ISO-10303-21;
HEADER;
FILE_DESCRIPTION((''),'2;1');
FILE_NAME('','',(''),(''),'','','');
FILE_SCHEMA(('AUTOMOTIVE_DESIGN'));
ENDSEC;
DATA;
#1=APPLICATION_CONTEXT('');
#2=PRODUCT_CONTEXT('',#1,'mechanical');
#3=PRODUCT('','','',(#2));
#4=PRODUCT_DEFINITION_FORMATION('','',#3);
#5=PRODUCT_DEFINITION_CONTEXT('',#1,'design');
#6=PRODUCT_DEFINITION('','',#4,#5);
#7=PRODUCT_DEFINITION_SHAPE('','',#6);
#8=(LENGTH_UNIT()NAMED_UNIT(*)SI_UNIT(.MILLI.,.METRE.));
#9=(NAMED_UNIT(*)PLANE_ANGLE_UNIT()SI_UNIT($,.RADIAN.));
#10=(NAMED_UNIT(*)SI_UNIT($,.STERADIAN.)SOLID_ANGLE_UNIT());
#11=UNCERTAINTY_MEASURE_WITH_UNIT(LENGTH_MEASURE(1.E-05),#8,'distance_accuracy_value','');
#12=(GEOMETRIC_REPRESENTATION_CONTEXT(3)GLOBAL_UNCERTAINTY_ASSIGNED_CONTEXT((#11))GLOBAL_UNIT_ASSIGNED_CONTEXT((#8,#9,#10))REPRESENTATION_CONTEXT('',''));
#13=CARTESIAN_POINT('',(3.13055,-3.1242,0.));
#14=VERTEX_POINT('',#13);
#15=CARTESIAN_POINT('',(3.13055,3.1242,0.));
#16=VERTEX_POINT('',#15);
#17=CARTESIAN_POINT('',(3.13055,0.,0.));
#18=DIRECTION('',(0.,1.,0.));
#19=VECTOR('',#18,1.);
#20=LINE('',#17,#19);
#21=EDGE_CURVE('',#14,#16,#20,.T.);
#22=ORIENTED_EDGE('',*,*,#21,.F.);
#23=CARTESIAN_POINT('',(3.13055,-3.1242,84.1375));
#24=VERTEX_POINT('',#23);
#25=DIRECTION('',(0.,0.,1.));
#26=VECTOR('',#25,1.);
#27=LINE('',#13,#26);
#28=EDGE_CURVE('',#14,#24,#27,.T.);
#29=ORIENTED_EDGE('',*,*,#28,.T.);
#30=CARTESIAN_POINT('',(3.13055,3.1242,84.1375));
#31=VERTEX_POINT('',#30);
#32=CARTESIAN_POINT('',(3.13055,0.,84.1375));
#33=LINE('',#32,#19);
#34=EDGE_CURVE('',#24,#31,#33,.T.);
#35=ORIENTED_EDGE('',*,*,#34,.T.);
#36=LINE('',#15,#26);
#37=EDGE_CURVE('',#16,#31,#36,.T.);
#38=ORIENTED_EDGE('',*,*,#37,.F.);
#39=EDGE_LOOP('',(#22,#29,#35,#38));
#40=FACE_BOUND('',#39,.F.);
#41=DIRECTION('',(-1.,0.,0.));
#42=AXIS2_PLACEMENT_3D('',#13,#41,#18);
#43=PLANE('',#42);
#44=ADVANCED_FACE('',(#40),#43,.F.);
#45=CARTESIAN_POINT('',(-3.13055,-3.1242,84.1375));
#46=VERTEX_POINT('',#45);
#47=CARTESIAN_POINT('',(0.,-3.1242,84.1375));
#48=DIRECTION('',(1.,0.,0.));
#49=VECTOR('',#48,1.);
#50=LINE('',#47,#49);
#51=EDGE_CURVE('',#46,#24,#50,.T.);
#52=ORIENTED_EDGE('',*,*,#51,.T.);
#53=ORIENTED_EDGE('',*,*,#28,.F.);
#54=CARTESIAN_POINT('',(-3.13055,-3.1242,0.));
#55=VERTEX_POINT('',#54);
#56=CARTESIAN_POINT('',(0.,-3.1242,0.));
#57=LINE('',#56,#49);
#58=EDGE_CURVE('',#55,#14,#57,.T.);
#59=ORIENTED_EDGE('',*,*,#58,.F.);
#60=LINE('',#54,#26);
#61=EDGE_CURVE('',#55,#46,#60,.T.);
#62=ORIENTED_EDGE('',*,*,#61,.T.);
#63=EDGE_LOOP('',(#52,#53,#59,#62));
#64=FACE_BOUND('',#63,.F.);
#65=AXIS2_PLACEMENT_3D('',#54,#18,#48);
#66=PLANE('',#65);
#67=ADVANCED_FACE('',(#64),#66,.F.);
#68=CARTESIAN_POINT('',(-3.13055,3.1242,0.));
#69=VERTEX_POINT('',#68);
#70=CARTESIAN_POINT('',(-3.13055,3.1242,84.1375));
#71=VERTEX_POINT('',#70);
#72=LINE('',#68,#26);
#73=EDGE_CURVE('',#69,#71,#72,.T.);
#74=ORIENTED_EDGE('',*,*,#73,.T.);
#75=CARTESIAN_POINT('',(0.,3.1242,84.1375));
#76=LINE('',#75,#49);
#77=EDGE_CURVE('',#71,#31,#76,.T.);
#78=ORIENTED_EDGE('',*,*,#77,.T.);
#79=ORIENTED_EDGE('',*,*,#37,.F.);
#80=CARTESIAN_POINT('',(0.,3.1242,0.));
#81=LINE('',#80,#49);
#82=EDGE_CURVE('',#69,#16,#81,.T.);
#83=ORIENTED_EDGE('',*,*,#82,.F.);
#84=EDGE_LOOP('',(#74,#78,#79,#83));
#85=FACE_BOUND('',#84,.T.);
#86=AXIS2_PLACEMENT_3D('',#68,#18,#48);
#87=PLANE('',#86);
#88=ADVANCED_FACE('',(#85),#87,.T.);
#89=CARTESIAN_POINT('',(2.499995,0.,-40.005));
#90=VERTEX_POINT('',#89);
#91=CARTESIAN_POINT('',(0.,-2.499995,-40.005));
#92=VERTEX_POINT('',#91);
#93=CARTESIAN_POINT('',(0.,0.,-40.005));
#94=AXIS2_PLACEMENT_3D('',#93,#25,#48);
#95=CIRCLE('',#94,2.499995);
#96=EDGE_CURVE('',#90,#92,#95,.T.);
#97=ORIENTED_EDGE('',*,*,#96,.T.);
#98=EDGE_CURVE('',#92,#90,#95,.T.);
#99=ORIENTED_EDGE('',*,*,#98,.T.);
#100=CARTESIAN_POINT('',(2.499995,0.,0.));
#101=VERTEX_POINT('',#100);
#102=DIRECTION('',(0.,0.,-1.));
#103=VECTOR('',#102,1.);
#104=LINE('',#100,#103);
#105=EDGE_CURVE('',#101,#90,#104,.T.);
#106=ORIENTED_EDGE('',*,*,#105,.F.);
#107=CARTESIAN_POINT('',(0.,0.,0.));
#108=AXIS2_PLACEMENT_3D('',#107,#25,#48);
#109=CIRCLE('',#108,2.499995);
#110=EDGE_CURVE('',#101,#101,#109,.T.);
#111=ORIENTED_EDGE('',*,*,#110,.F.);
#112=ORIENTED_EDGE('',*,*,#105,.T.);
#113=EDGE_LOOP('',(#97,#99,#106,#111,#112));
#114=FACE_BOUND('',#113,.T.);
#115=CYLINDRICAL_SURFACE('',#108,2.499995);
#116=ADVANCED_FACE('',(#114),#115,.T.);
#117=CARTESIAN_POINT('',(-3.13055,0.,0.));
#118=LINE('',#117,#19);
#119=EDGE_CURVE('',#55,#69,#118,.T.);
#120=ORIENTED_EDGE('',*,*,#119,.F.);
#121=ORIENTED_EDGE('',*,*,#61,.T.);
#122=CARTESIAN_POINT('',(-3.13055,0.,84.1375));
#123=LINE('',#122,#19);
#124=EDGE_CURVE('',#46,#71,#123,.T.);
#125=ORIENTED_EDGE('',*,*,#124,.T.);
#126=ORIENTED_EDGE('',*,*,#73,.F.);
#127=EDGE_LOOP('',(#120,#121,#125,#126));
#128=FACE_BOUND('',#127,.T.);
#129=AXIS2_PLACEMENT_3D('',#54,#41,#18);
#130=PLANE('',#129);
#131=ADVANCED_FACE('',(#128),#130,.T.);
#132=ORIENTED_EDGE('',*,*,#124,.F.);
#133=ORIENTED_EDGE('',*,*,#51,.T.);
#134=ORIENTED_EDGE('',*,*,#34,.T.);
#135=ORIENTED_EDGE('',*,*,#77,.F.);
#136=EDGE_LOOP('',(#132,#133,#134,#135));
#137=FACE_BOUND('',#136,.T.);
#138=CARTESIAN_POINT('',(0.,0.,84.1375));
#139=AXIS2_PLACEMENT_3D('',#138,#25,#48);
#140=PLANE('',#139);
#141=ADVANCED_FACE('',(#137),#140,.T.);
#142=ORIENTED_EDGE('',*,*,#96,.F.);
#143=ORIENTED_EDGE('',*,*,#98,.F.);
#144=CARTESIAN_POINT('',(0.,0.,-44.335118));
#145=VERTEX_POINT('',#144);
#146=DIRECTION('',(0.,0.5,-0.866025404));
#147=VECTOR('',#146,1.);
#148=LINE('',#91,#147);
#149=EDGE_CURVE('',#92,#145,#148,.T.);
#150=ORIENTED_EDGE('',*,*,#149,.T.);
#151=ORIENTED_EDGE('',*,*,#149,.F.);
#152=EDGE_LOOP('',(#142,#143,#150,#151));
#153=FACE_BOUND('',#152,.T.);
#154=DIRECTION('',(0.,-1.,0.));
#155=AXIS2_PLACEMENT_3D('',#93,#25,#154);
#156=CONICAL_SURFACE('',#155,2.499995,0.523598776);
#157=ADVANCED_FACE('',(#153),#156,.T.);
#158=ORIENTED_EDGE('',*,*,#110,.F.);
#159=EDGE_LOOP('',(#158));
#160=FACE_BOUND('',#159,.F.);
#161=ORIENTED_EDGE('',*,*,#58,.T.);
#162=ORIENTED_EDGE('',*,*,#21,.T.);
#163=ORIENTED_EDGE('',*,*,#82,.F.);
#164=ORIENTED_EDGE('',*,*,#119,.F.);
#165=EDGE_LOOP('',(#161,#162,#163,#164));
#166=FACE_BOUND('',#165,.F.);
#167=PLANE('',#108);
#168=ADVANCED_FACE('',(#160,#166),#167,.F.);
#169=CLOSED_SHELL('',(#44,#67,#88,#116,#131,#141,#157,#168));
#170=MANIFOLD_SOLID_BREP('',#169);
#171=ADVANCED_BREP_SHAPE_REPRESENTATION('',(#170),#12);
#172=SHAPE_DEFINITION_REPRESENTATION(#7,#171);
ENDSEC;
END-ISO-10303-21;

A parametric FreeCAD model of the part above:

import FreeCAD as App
import Part
import Sketcher
Q = App.Units.Quantity

doc = App.newDocument("Part")
body = doc.addObject("PartDesign::Body", "Body")

# Sketch on XY plane
sketch1 = body.newObject("Sketcher::SketchObject", "Sketch")
sketch1.AttachmentSupport = (doc.getObject("XY_Plane"), [""])
sketch1.MapMode = "FlatFace"
sketch1.addGeometry([
    Part.LineSegment(App.Vector(-3, 3, 0), App.Vector(-3, -3, 0)),
    Part.LineSegment(App.Vector(-3, -3, 0), App.Vector(3, -3, 0)),
    Part.LineSegment(App.Vector(3, -3, 0), App.Vector(3, 3, 0)),
    Part.LineSegment(App.Vector(3, 3, 0), App.Vector(-3, 3, 0)),
], False)
sketch1.addConstraint([
    Sketcher.Constraint("Coincident", 0, 2, 1, 1),
    Sketcher.Constraint("Coincident", 1, 2, 2, 1),
    Sketcher.Constraint("Coincident", 2, 2, 3, 1),
    Sketcher.Constraint("Coincident", 3, 2, 0, 1),
    Sketcher.Constraint("Vertical", 0),
    Sketcher.Constraint("Horizontal", 1),
    Sketcher.Constraint("Vertical", 2),
    Sketcher.Constraint("Horizontal", 3),
    Sketcher.Constraint("Symmetric", 0, 2, 2, 2, -1, 1),
    Sketcher.Constraint("DistanceY", 0, 2, 0, 1, Q("0.246 in")),
    Sketcher.Constraint("DistanceX", 1, 1, 1, 2, Q("0.2465 in")),
])
pad1 = body.newObject("PartDesign::Pad", "Pad")
pad1.Profile = sketch1
pad1.Length = Q("3.3125 in")

# Sketch on XY plane
sketch2 = body.newObject("Sketcher::SketchObject", "Sketch001")
sketch2.AttachmentSupport = (doc.getObject("XY_Plane"), [""])
sketch2.MapMode = "FlatFace"
sketch2.addGeometry(Part.Circle(App.Vector(0, 0, 0), App.Vector(0, 0, 1), 2.5), False)
sketch2.addConstraint([
    Sketcher.Constraint("Coincident", 0, 3, -1, 1),
    Sketcher.Constraint("Diameter", 0, Q("4.99999 mm")),
])
pad2 = body.newObject("PartDesign::Pad", "Pad001")
pad2.Profile = sketch2
pad2.Length = Q("1.575 in")
pad2.Reversed = True

# Sketch on YZ plane
sketch3 = body.newObject("Sketcher::SketchObject", "Sketch002")
sketch3.AttachmentSupport = (doc.getObject("YZ_Plane"), [""])
sketch3.MapMode = "FlatFace"
sketch3.addGeometry([
    Part.LineSegment(App.Vector(0, -40, 0), App.Vector(-2.5, -40, 0)),
    Part.LineSegment(App.Vector(-2.5, -40, 0), App.Vector(0, -44.3, 0)),
    Part.LineSegment(App.Vector(0, -44.3, 0), App.Vector(0, -40, 0)),
], False)
sketch3.addConstraint([
    Sketcher.Constraint("Coincident", 0, 2, 1, 1),
    Sketcher.Constraint("Coincident", 1, 2, 2, 1),
    Sketcher.Constraint("Coincident", 2, 2, 0, 1),
    Sketcher.Constraint("Horizontal", 0),
    Sketcher.Constraint("Vertical", 2),
    Sketcher.Constraint("PointOnObject", 1, 2, -2),
    Sketcher.Constraint("Angle", 1, Q("-60 deg")),
    Sketcher.Constraint("DistanceY", 0, 2, -1, 1, Q("1.575 in")),
    Sketcher.Constraint("DistanceY", 2, 1, 2, 2, Q("4.330118 mm")),
])
revolution = body.newObject("PartDesign::Revolution", "Revolution")
revolution.Profile = sketch3
revolution.ReferenceAxis = (sketch3, ["V_Axis"])
revolution.Angle = 360

doc.recompute()
